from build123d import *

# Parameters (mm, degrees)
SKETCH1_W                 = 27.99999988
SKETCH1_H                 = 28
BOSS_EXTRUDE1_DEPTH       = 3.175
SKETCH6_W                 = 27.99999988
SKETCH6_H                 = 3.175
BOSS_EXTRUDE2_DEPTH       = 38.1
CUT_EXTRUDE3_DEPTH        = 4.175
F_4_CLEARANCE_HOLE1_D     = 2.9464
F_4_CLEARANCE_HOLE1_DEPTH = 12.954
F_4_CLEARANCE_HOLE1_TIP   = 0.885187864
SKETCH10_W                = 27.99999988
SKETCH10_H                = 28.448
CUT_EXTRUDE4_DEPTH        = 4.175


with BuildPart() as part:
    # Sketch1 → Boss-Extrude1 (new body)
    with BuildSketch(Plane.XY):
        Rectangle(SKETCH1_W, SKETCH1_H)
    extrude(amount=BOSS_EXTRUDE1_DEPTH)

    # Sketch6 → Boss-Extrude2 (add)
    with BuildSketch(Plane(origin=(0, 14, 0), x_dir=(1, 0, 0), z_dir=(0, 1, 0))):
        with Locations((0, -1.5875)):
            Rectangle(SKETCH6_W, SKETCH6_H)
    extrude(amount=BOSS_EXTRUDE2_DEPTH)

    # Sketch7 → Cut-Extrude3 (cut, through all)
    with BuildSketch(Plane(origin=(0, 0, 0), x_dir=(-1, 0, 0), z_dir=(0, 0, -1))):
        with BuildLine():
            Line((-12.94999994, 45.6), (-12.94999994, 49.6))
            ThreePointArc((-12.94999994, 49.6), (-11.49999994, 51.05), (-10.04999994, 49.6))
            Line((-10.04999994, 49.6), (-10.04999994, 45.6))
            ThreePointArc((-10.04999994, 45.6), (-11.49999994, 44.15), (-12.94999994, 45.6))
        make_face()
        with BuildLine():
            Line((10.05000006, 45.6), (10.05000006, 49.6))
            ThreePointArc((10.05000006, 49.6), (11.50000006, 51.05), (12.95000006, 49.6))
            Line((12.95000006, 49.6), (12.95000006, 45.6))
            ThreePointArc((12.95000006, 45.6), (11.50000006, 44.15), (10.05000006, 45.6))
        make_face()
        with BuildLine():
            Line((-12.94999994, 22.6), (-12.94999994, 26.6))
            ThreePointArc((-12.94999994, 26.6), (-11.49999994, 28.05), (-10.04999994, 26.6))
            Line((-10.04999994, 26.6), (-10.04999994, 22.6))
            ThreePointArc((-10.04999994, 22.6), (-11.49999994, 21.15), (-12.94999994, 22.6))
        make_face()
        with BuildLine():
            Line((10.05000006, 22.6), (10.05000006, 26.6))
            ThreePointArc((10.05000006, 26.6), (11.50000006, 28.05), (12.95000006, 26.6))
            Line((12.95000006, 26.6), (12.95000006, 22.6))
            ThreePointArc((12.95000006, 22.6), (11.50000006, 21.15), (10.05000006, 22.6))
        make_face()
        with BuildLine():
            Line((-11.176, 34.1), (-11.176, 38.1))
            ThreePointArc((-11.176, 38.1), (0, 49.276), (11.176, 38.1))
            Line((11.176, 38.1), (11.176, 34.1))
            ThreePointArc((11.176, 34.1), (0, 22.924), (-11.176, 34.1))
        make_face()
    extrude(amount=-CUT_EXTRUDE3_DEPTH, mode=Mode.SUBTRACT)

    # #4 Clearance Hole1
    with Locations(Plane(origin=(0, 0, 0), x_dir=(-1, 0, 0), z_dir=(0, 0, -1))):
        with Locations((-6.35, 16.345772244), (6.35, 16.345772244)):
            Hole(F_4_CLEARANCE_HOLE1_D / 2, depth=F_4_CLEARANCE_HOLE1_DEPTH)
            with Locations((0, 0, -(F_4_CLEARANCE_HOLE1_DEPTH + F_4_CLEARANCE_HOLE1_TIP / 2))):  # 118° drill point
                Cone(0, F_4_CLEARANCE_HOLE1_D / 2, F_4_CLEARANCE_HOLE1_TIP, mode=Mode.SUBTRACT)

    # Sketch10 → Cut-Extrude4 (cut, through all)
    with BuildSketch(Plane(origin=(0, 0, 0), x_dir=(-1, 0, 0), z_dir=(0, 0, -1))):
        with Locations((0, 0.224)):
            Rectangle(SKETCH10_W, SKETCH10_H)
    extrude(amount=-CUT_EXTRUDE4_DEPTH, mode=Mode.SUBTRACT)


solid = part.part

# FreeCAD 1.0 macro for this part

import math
import FreeCAD as App
import Part
import Sketcher

V = App.Vector
Q = App.Units.Quantity

doc = App.newDocument("Part")
body = doc.addObject("PartDesign::Body", "Body")

# Sketch on XY plane
sketch1 = body.newObject("Sketcher::SketchObject", "Sketch")
sketch1.AttachmentSupport = (doc.getObject("XY_Plane"), [""])
sketch1.MapMode = "FlatFace"
sketch1.addGeometry([
    Part.LineSegment(V(-14, 14, 0), V(-14, -14, 0)),
    Part.LineSegment(V(-14, -14, 0), V(14, -14, 0)),
    Part.LineSegment(V(14, -14, 0), V(14, 14, 0)),
    Part.LineSegment(V(14, 14, 0), V(-14, 14, 0)),
], False)
sketch1.addConstraint([
    Sketcher.Constraint("Coincident", 0, 2, 1, 1),
    Sketcher.Constraint("Coincident", 1, 2, 2, 1),
    Sketcher.Constraint("Coincident", 2, 2, 3, 1),
    Sketcher.Constraint("Coincident", 3, 2, 0, 1),
    Sketcher.Constraint("Vertical", 0),
    Sketcher.Constraint("Horizontal", 1),
    Sketcher.Constraint("Vertical", 2),
    Sketcher.Constraint("Horizontal", 3),
    Sketcher.Constraint("Symmetric", 0, 2, 2, 2, -1, 1),
    Sketcher.Constraint("Equal", 3, 0),
    Sketcher.Constraint("DistanceX", 1, 1, 1, 2, 28.0),
])
pad1 = body.newObject("PartDesign::Pad", "Pad")
pad1.Profile = sketch1
pad1.Length = Q("0.125 in")

# Sketch on XZ plane
sketch2 = body.newObject("Sketcher::SketchObject", "Sketch001")
sketch2.AttachmentSupport = (doc.getObject("XZ_Plane"), [""])
sketch2.MapMode = "FlatFace"
sketch2.AttachmentOffset = App.Placement(V(0, 0, -14), App.Rotation())
sketch2.addGeometry([
    Part.LineSegment(V(-14, 0, 0), V(-14, 3.2, 0)),
    Part.LineSegment(V(-14, 3.2, 0), V(14, 3.2, 0)),
    Part.LineSegment(V(14, 3.2, 0), V(14, 0, 0)),
    Part.LineSegment(V(14, 0, 0), V(-14, 0, 0)),
], False)
sketch2.addConstraint([
    Sketcher.Constraint("Coincident", 0, 2, 1, 1),
    Sketcher.Constraint("Coincident", 1, 2, 2, 1),
    Sketcher.Constraint("Coincident", 2, 2, 3, 1),
    Sketcher.Constraint("Coincident", 3, 2, 0, 1),
    Sketcher.Constraint("Vertical", 0),
    Sketcher.Constraint("Horizontal", 1),
    Sketcher.Constraint("Vertical", 2),
    Sketcher.Constraint("Horizontal", 3),
    Sketcher.Constraint("Symmetric", 2, 2, 3, 2, -1, 1),
    Sketcher.Constraint("DistanceY", 0, 1, 0, 2, Q("0.125 in")),
    Sketcher.Constraint("DistanceX", 1, 1, 1, 2, 28.0),
])
pad2 = body.newObject("PartDesign::Pad", "Pad001")
pad2.Profile = sketch2
pad2.Length = Q("1.5 in")
pad2.Reversed = True

# Sketch on XY plane
sketch3 = body.newObject("Sketcher::SketchObject", "Sketch002")
sketch3.AttachmentSupport = (doc.getObject("XY_Plane"), [""])
sketch3.MapMode = "FlatFace"
sketch3.addGeometry([
    Part.LineSegment(V(12.9, 49.6, 0), V(12.9, 45.6, 0)),  # 0
    Part.ArcOfCircle(Part.Circle(V(11.5, 45.6, 0), V(0, 0, 1), 1.4), math.radians(180), math.radians(360)),  # 1
    Part.LineSegment(V(10, 45.6, 0), V(10, 49.6, 0)),  # 2
    Part.ArcOfCircle(Part.Circle(V(11.5, 49.6, 0), V(0, 0, 1), 1.4), math.radians(0), math.radians(180)),  # 3
    Part.LineSegment(V(-10.1, 49.6, 0), V(-10.1, 45.6, 0)),  # 4
    Part.ArcOfCircle(Part.Circle(V(-11.5, 45.6, 0), V(0, 0, 1), 1.4), math.radians(180), math.radians(360)),  # 5
    Part.LineSegment(V(-13, 45.6, 0), V(-13, 49.6, 0)),  # 6
    Part.ArcOfCircle(Part.Circle(V(-11.5, 49.6, 0), V(0, 0, 1), 1.4), math.radians(0), math.radians(180)),  # 7
    Part.LineSegment(V(12.9, 26.6, 0), V(12.9, 22.6, 0)),  # 8
    Part.ArcOfCircle(Part.Circle(V(11.5, 22.6, 0), V(0, 0, 1), 1.4), math.radians(180), math.radians(360)),  # 9
    Part.LineSegment(V(10, 22.6, 0), V(10, 26.6, 0)),  # 10
    Part.ArcOfCircle(Part.Circle(V(11.5, 26.6, 0), V(0, 0, 1), 1.4), math.radians(0), math.radians(180)),  # 11
    Part.LineSegment(V(-10.1, 26.6, 0), V(-10.1, 22.6, 0)),  # 12
    Part.ArcOfCircle(Part.Circle(V(-11.5, 22.6, 0), V(0, 0, 1), 1.4), math.radians(180), math.radians(360)),  # 13
    Part.LineSegment(V(-13, 22.6, 0), V(-13, 26.6, 0)),  # 14
    Part.ArcOfCircle(Part.Circle(V(-11.5, 26.6, 0), V(0, 0, 1), 1.4), math.radians(0), math.radians(180)),  # 15
    Part.LineSegment(V(11.2, 38.1, 0), V(11.2, 34.1, 0)),  # 16
    Part.ArcOfCircle(Part.Circle(V(0, 34.1, 0), V(0, 0, 1), 11.2), math.radians(180), math.radians(360)),  # 17
    Part.LineSegment(V(-11.2, 34.1, 0), V(-11.2, 38.1, 0)),  # 18
    Part.ArcOfCircle(Part.Circle(V(0, 38.1, 0), V(0, 0, 1), 11.2), math.radians(0), math.radians(180)),  # 19
], False)
sketch3.addConstraint([
    Sketcher.Constraint("Tangent", 0, 2, 1, 2),
    Sketcher.Constraint("Tangent", 1, 1, 2, 1),
    Sketcher.Constraint("Tangent", 2, 2, 3, 2),
    Sketcher.Constraint("Tangent", 3, 1, 0, 1),
    Sketcher.Constraint("Tangent", 4, 2, 5, 2),
    Sketcher.Constraint("Tangent", 5, 1, 6, 1),
    Sketcher.Constraint("Tangent", 6, 2, 7, 2),
    Sketcher.Constraint("Tangent", 7, 1, 4, 1),
    Sketcher.Constraint("Tangent", 8, 2, 9, 2),
    Sketcher.Constraint("Tangent", 9, 1, 10, 1),
    Sketcher.Constraint("Tangent", 10, 2, 11, 2),
    Sketcher.Constraint("Tangent", 11, 1, 8, 1),
    Sketcher.Constraint("Tangent", 12, 2, 13, 2),
    Sketcher.Constraint("Tangent", 13, 1, 14, 1),
    Sketcher.Constraint("Tangent", 14, 2, 15, 2),
    Sketcher.Constraint("Tangent", 15, 1, 12, 1),
    Sketcher.Constraint("Tangent", 16, 2, 17, 2),
    Sketcher.Constraint("Tangent", 17, 1, 18, 1),
    Sketcher.Constraint("Tangent", 18, 2, 19, 2),
    Sketcher.Constraint("Tangent", 19, 1, 16, 1),
    Sketcher.Constraint("Vertical", 0),
    Sketcher.Constraint("Vertical", 2),
    Sketcher.Constraint("Vertical", 4),
    Sketcher.Constraint("Vertical", 6),
    Sketcher.Constraint("Vertical", 8),
    Sketcher.Constraint("Vertical", 10),
    Sketcher.Constraint("Vertical", 12),
    Sketcher.Constraint("Vertical", 14),
    Sketcher.Constraint("Vertical", 16),
    Sketcher.Constraint("Vertical", 18),
    Sketcher.Constraint("Equal", 3, 5),
    Sketcher.Constraint("Equal", 7, 9),
    Sketcher.Constraint("Equal", 11, 13),
    Sketcher.Constraint("Symmetric", 1, 3, 5, 3, -2),
    Sketcher.Constraint("Symmetric", 9, 3, 13, 3, -2),
    Sketcher.Constraint("PointOnObject", 17, 3, -2),
    Sketcher.Constraint("Horizontal", 3, 3, 7, 3),
    Sketcher.Constraint("Horizontal", 11, 3, 15, 3),
    Sketcher.Constraint("Vertical", 3, 3, 9, 3),
    Sketcher.Constraint("Equal", 6, 8),
    Sketcher.Constraint("Equal", 14, 16),
    Sketcher.Constraint("Radius", 17, Q("0.44 in")),
    Sketcher.Constraint("DistanceY", -1, 1, 19, 3, Q("1.5 in")),
    Sketcher.Constraint("Radius", 1, 1.45),
    Sketcher.Constraint("DistanceY", 0, 2, 0, 1, 4.0),
    Sketcher.Constraint("DistanceX", -1, 1, 1, 3, 11.5),
    Sketcher.Constraint("DistanceY", -1, 1, 1, 3, 45.6),
    Sketcher.Constraint("DistanceY", -1, 1, 9, 3, 22.6),
])
pocket1 = body.newObject("PartDesign::Pocket", "Pocket")
pocket1.Profile = sketch3
pocket1.Type = "ThroughAll"
pocket1.Reversed = True

# Sketch on XY plane
sketch4 = body.newObject("Sketcher::SketchObject", "Sketch003")
sketch4.AttachmentSupport = (doc.getObject("XY_Plane"), [""])
sketch4.MapMode = "FlatFace"
sketch4.addGeometry([
    Part.Circle(V(6.3, 16.3, 0), V(0, 0, 1), 1.5),
    Part.Circle(V(-6.3, 16.3, 0), V(0, 0, 1), 1.5),
], False)
sketch4.addConstraint([
    Sketcher.Constraint("Equal", 0, 1),
    Sketcher.Constraint("Symmetric", 0, 3, 1, 3, -2),
    Sketcher.Constraint("Diameter", 0, Q("0.116 in")),
    Sketcher.Constraint("DistanceX", 1, 3, 0, 3, Q("0.5 in")),
    Sketcher.Constraint("DistanceY", -1, 1, 0, 3, 16.345772),
])
doc.recompute()
hole = body.newObject("PartDesign::Hole", "Hole")
hole.Profile = sketch4
hole.ThreadType = "None"
hole.Diameter = Q("0.116 in")
hole.DepthType = "Dimension"
hole.Depth = Q("0.51 in")
hole.DrillPoint = "Angled"
hole.DrillPointAngle = 118
hole.Reversed = True

# Sketch on XY plane
sketch5 = body.newObject("Sketcher::SketchObject", "Sketch004")
sketch5.AttachmentSupport = (doc.getObject("XY_Plane"), [""])
sketch5.MapMode = "FlatFace"
sketch5.addGeometry([
    Part.LineSegment(V(14, 14, 0), V(14, -14, 0)),
    Part.LineSegment(V(14, -14, 0), V(-14, -14, 0)),
    Part.LineSegment(V(-14, -14, 0), V(-14, 14, 0)),
    Part.LineSegment(V(-14, 14, 0), V(14, 14, 0)),
], False)
sketch5.addConstraint([
    Sketcher.Constraint("Coincident", 0, 2, 1, 1),
    Sketcher.Constraint("Coincident", 1, 2, 2, 1),
    Sketcher.Constraint("Coincident", 2, 2, 3, 1),
    Sketcher.Constraint("Coincident", 3, 2, 0, 1),
    Sketcher.Constraint("Vertical", 0),
    Sketcher.Constraint("Horizontal", 1),
    Sketcher.Constraint("Vertical", 2),
    Sketcher.Constraint("Horizontal", 3),
    Sketcher.Constraint("DistanceY", 0, 2, 0, 1, Q("1.12 in")),
    Sketcher.Constraint("DistanceX", 1, 2, 1, 1, 28.0),
    Sketcher.Constraint("DistanceX", -1, 1, 0, 2, 14.0),
    Sketcher.Constraint("DistanceY", 0, 2, -1, 1, 14.0),
])
pocket2 = body.newObject("PartDesign::Pocket", "Pocket001")
pocket2.Profile = sketch5
pocket2.Type = "ThroughAll"
pocket2.Reversed = True

doc.recompute()
